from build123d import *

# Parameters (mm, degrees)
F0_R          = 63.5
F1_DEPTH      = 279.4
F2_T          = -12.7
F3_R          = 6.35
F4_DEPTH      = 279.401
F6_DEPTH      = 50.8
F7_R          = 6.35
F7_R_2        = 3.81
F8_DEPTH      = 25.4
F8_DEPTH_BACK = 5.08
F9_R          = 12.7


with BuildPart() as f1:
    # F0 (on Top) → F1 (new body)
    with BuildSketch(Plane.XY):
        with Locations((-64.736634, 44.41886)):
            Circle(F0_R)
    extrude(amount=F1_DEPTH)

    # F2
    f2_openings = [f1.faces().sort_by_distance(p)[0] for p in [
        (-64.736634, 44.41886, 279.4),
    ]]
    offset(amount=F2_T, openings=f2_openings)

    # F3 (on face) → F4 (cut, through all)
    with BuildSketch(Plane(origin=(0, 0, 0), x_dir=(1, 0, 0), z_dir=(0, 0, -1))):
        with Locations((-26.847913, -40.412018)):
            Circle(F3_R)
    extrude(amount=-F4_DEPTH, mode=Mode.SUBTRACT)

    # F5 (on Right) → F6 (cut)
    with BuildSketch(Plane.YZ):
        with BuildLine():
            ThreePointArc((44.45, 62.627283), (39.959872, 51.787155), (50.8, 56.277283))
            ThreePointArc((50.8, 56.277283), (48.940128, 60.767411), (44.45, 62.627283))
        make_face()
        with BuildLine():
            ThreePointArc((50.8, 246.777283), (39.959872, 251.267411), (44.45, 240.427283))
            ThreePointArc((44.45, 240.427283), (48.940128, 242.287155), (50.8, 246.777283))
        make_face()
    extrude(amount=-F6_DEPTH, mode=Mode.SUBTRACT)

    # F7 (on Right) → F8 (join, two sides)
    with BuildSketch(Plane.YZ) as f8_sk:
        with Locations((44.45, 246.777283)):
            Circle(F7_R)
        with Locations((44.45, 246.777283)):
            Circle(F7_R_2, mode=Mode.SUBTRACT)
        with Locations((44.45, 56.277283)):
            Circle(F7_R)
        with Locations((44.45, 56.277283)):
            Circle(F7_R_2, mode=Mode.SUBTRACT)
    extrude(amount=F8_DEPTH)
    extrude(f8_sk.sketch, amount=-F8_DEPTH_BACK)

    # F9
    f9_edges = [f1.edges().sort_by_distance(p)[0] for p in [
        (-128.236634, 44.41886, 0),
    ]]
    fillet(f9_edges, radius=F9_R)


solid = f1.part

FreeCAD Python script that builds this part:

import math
import FreeCAD as App
import Part
import Sketcher
Q = App.Units.Quantity


def edges_at(feature, points):
    """Names of the edges that pass closest to the given points."""
    edges = feature.Shape.Edges
    near = lambda p: min(range(len(edges)), key=lambda i: edges[i].distToShape(Part.Vertex(*p))[0])
    return sorted({f"Edge{near(p) + 1}" for p in points})


def faces_at(feature, points):
    """Names of the faces that lie closest to the given points."""
    faces = feature.Shape.Faces
    near = lambda p: min(range(len(faces)), key=lambda i: faces[i].distToShape(Part.Vertex(*p))[0])
    return sorted({f"Face{near(p) + 1}" for p in points})

doc = App.newDocument("Part")
body = doc.addObject("PartDesign::Body", "Body")

# Sketch on XY plane
sketch1 = doc.addObject("Sketcher::SketchObject", "Sketch")
body.addObject(sketch1)
sketch1.AttachmentSupport = (doc.XY_Plane, [""])
sketch1.MapMode = "FlatFace"
sketch1.addGeometry(Part.Circle(App.Vector(-64.736634, 44.41886, 0), App.Vector(0, 0, 1), 63.5), False)
sketch1.addConstraint([
    Sketcher.Constraint("Diameter", 0, Q("5 in")),
    Sketcher.Constraint("DistanceY", -1, 1, 0, 3, Q("44.41886 mm")),
    Sketcher.Constraint("DistanceX", 0, 3, -1, 1, Q("64.736634 mm")),
])
pad1 = doc.addObject("PartDesign::Pad", "Pad")
body.addObject(pad1)
pad1.Profile = sketch1
pad1.Length = Q("11 in")
doc.recompute()

thickness = doc.addObject("PartDesign::Thickness", "Thickness")
body.addObject(thickness)
thickness.Base = (pad1, faces_at(pad1, [(-64.737, 44.419, 279.4)]))
thickness.Value = Q("0.5 in")
thickness.Reversed = True
thickness.Join = "Arc"

# Sketch on XY plane
sketch2 = doc.addObject("Sketcher::SketchObject", "Sketch001")
body.addObject(sketch2)
sketch2.AttachmentSupport = (doc.XY_Plane, [""])
sketch2.MapMode = "FlatFace"
sketch2.addGeometry(Part.Circle(App.Vector(-26.847913, 40.412018, 0), App.Vector(0, 0, 1), 6.35), False)
sketch2.addConstraint([
    Sketcher.Constraint("Diameter", 0, Q("0.5 in")),
    Sketcher.Constraint("DistanceY", -1, 1, 0, 3, Q("40.412018 mm")),
    Sketcher.Constraint("DistanceX", 0, 3, -1, 1, Q("26.847913 mm")),
])
pocket1 = doc.addObject("PartDesign::Pocket", "Pocket")
body.addObject(pocket1)
pocket1.Profile = sketch2
pocket1.Type = "ThroughAll"
pocket1.Reversed = True

# Sketch on YZ plane
sketch3 = doc.addObject("Sketcher::SketchObject", "Sketch002")
body.addObject(sketch3)
sketch3.AttachmentSupport = (doc.YZ_Plane, [""])
sketch3.MapMode = "FlatFace"
sketch3.addGeometry([
    Part.ArcOfCircle(Part.Circle(App.Vector(44.45, 56.277283, 0), App.Vector(0, 0, 1), 6.35), math.radians(90), math.radians(360)),
    Part.ArcOfCircle(Part.Circle(App.Vector(44.45, 56.277283, 0), App.Vector(0, 0, 1), 6.35), math.radians(0.000002), math.radians(89.999998)),
    Part.ArcOfCircle(Part.Circle(App.Vector(44.45, 246.777283, 0), App.Vector(0, 0, 1), 6.35), math.radians(0), math.radians(270)),
    Part.ArcOfCircle(Part.Circle(App.Vector(44.45, 246.777283, 0), App.Vector(0, 0, 1), 6.35), math.radians(-89.999998), math.radians(-0.000002)),
], False)
sketch3.addConstraint([
    Sketcher.Constraint("Tangent", 0, 1, 1, 2),
    Sketcher.Constraint("Coincident", 1, 1, 0, 2),
    Sketcher.Constraint("Tangent", 2, 1, 3, 2),
    Sketcher.Constraint("Coincident", 3, 1, 2, 2),
    Sketcher.Constraint("Equal", 1, 2),
    Sketcher.Constraint("Horizontal", 0, 3, 1, 1),
    Sketcher.Constraint("Horizontal", 3, 3, 2, 1),
    Sketcher.Constraint("Vertical", 1, 3, 2, 3),
    Sketcher.Constraint("Vertical", 3, 3, 0, 1),
    Sketcher.Constraint("Vertical", 0, 1, 3, 1),
    Sketcher.Constraint("Radius", 0, Q("0.25 in")),
    Sketcher.Constraint("DistanceX", -1, 1, 1, 1, Q("2 in")),
    Sketcher.Constraint("DistanceY", 0, 1, 3, 1, Q("7 in")),
    Sketcher.Constraint("DistanceY", -1, 1, 0, 3, Q("56.277283 mm")),
])
pocket2 = doc.addObject("PartDesign::Pocket", "Pocket001")
body.addObject(pocket2)
pocket2.Profile = sketch3
pocket2.Length = Q("2 in")

# Sketch on YZ plane
sketch4 = doc.addObject("Sketcher::SketchObject", "Sketch003")
body.addObject(sketch4)
sketch4.AttachmentSupport = (doc.YZ_Plane, [""])
sketch4.MapMode = "FlatFace"
sketch4.addGeometry([
    Part.Circle(App.Vector(44.45, 246.777283, 0), App.Vector(0, 0, 1), 6.35),
    Part.Circle(App.Vector(44.45, 246.777283, 0), App.Vector(0, 0, 1), 3.81),
    Part.Circle(App.Vector(44.45, 56.277283, 0), App.Vector(0, 0, 1), 6.35),
    Part.Circle(App.Vector(44.45, 56.277283, 0), App.Vector(0, 0, 1), 3.81),
], False)
sketch4.addConstraint([
    Sketcher.Constraint("Coincident", 1, 3, 0, 3),
    Sketcher.Constraint("Coincident", 3, 3, 2, 3),
    Sketcher.Constraint("Equal", 0, 2),
    Sketcher.Constraint("Equal", 1, 3),
    Sketcher.Constraint("Vertical", 1, 3, 2, 3),
    Sketcher.Constraint("Diameter", 0, Q("0.5 in")),
    Sketcher.Constraint("Diameter", 1, Q("0.3 in")),
    Sketcher.Constraint("DistanceY", 2, 3, 0, 3, Q("7.5 in")),
    Sketcher.Constraint("DistanceX", -1, 1, 0, 3, Q("1.75 in")),
    Sketcher.Constraint("DistanceY", -1, 1, 0, 3, Q("246.777283 mm")),
])
pad2 = doc.addObject("PartDesign::Pad", "Pad001")
body.addObject(pad2)
pad2.Profile = sketch4
pad2.Type = "TwoLengths"
pad2.Length = Q("1 in")
pad2.Length2 = Q("0.2 in")
doc.recompute()

fillet = doc.addObject("PartDesign::Fillet", "Fillet")
body.addObject(fillet)
fillet.Base = (pad2, edges_at(pad2, [(-128.237, 44.419, 0)]))
fillet.Radius = Q("0.5 in")

doc.recompute()
